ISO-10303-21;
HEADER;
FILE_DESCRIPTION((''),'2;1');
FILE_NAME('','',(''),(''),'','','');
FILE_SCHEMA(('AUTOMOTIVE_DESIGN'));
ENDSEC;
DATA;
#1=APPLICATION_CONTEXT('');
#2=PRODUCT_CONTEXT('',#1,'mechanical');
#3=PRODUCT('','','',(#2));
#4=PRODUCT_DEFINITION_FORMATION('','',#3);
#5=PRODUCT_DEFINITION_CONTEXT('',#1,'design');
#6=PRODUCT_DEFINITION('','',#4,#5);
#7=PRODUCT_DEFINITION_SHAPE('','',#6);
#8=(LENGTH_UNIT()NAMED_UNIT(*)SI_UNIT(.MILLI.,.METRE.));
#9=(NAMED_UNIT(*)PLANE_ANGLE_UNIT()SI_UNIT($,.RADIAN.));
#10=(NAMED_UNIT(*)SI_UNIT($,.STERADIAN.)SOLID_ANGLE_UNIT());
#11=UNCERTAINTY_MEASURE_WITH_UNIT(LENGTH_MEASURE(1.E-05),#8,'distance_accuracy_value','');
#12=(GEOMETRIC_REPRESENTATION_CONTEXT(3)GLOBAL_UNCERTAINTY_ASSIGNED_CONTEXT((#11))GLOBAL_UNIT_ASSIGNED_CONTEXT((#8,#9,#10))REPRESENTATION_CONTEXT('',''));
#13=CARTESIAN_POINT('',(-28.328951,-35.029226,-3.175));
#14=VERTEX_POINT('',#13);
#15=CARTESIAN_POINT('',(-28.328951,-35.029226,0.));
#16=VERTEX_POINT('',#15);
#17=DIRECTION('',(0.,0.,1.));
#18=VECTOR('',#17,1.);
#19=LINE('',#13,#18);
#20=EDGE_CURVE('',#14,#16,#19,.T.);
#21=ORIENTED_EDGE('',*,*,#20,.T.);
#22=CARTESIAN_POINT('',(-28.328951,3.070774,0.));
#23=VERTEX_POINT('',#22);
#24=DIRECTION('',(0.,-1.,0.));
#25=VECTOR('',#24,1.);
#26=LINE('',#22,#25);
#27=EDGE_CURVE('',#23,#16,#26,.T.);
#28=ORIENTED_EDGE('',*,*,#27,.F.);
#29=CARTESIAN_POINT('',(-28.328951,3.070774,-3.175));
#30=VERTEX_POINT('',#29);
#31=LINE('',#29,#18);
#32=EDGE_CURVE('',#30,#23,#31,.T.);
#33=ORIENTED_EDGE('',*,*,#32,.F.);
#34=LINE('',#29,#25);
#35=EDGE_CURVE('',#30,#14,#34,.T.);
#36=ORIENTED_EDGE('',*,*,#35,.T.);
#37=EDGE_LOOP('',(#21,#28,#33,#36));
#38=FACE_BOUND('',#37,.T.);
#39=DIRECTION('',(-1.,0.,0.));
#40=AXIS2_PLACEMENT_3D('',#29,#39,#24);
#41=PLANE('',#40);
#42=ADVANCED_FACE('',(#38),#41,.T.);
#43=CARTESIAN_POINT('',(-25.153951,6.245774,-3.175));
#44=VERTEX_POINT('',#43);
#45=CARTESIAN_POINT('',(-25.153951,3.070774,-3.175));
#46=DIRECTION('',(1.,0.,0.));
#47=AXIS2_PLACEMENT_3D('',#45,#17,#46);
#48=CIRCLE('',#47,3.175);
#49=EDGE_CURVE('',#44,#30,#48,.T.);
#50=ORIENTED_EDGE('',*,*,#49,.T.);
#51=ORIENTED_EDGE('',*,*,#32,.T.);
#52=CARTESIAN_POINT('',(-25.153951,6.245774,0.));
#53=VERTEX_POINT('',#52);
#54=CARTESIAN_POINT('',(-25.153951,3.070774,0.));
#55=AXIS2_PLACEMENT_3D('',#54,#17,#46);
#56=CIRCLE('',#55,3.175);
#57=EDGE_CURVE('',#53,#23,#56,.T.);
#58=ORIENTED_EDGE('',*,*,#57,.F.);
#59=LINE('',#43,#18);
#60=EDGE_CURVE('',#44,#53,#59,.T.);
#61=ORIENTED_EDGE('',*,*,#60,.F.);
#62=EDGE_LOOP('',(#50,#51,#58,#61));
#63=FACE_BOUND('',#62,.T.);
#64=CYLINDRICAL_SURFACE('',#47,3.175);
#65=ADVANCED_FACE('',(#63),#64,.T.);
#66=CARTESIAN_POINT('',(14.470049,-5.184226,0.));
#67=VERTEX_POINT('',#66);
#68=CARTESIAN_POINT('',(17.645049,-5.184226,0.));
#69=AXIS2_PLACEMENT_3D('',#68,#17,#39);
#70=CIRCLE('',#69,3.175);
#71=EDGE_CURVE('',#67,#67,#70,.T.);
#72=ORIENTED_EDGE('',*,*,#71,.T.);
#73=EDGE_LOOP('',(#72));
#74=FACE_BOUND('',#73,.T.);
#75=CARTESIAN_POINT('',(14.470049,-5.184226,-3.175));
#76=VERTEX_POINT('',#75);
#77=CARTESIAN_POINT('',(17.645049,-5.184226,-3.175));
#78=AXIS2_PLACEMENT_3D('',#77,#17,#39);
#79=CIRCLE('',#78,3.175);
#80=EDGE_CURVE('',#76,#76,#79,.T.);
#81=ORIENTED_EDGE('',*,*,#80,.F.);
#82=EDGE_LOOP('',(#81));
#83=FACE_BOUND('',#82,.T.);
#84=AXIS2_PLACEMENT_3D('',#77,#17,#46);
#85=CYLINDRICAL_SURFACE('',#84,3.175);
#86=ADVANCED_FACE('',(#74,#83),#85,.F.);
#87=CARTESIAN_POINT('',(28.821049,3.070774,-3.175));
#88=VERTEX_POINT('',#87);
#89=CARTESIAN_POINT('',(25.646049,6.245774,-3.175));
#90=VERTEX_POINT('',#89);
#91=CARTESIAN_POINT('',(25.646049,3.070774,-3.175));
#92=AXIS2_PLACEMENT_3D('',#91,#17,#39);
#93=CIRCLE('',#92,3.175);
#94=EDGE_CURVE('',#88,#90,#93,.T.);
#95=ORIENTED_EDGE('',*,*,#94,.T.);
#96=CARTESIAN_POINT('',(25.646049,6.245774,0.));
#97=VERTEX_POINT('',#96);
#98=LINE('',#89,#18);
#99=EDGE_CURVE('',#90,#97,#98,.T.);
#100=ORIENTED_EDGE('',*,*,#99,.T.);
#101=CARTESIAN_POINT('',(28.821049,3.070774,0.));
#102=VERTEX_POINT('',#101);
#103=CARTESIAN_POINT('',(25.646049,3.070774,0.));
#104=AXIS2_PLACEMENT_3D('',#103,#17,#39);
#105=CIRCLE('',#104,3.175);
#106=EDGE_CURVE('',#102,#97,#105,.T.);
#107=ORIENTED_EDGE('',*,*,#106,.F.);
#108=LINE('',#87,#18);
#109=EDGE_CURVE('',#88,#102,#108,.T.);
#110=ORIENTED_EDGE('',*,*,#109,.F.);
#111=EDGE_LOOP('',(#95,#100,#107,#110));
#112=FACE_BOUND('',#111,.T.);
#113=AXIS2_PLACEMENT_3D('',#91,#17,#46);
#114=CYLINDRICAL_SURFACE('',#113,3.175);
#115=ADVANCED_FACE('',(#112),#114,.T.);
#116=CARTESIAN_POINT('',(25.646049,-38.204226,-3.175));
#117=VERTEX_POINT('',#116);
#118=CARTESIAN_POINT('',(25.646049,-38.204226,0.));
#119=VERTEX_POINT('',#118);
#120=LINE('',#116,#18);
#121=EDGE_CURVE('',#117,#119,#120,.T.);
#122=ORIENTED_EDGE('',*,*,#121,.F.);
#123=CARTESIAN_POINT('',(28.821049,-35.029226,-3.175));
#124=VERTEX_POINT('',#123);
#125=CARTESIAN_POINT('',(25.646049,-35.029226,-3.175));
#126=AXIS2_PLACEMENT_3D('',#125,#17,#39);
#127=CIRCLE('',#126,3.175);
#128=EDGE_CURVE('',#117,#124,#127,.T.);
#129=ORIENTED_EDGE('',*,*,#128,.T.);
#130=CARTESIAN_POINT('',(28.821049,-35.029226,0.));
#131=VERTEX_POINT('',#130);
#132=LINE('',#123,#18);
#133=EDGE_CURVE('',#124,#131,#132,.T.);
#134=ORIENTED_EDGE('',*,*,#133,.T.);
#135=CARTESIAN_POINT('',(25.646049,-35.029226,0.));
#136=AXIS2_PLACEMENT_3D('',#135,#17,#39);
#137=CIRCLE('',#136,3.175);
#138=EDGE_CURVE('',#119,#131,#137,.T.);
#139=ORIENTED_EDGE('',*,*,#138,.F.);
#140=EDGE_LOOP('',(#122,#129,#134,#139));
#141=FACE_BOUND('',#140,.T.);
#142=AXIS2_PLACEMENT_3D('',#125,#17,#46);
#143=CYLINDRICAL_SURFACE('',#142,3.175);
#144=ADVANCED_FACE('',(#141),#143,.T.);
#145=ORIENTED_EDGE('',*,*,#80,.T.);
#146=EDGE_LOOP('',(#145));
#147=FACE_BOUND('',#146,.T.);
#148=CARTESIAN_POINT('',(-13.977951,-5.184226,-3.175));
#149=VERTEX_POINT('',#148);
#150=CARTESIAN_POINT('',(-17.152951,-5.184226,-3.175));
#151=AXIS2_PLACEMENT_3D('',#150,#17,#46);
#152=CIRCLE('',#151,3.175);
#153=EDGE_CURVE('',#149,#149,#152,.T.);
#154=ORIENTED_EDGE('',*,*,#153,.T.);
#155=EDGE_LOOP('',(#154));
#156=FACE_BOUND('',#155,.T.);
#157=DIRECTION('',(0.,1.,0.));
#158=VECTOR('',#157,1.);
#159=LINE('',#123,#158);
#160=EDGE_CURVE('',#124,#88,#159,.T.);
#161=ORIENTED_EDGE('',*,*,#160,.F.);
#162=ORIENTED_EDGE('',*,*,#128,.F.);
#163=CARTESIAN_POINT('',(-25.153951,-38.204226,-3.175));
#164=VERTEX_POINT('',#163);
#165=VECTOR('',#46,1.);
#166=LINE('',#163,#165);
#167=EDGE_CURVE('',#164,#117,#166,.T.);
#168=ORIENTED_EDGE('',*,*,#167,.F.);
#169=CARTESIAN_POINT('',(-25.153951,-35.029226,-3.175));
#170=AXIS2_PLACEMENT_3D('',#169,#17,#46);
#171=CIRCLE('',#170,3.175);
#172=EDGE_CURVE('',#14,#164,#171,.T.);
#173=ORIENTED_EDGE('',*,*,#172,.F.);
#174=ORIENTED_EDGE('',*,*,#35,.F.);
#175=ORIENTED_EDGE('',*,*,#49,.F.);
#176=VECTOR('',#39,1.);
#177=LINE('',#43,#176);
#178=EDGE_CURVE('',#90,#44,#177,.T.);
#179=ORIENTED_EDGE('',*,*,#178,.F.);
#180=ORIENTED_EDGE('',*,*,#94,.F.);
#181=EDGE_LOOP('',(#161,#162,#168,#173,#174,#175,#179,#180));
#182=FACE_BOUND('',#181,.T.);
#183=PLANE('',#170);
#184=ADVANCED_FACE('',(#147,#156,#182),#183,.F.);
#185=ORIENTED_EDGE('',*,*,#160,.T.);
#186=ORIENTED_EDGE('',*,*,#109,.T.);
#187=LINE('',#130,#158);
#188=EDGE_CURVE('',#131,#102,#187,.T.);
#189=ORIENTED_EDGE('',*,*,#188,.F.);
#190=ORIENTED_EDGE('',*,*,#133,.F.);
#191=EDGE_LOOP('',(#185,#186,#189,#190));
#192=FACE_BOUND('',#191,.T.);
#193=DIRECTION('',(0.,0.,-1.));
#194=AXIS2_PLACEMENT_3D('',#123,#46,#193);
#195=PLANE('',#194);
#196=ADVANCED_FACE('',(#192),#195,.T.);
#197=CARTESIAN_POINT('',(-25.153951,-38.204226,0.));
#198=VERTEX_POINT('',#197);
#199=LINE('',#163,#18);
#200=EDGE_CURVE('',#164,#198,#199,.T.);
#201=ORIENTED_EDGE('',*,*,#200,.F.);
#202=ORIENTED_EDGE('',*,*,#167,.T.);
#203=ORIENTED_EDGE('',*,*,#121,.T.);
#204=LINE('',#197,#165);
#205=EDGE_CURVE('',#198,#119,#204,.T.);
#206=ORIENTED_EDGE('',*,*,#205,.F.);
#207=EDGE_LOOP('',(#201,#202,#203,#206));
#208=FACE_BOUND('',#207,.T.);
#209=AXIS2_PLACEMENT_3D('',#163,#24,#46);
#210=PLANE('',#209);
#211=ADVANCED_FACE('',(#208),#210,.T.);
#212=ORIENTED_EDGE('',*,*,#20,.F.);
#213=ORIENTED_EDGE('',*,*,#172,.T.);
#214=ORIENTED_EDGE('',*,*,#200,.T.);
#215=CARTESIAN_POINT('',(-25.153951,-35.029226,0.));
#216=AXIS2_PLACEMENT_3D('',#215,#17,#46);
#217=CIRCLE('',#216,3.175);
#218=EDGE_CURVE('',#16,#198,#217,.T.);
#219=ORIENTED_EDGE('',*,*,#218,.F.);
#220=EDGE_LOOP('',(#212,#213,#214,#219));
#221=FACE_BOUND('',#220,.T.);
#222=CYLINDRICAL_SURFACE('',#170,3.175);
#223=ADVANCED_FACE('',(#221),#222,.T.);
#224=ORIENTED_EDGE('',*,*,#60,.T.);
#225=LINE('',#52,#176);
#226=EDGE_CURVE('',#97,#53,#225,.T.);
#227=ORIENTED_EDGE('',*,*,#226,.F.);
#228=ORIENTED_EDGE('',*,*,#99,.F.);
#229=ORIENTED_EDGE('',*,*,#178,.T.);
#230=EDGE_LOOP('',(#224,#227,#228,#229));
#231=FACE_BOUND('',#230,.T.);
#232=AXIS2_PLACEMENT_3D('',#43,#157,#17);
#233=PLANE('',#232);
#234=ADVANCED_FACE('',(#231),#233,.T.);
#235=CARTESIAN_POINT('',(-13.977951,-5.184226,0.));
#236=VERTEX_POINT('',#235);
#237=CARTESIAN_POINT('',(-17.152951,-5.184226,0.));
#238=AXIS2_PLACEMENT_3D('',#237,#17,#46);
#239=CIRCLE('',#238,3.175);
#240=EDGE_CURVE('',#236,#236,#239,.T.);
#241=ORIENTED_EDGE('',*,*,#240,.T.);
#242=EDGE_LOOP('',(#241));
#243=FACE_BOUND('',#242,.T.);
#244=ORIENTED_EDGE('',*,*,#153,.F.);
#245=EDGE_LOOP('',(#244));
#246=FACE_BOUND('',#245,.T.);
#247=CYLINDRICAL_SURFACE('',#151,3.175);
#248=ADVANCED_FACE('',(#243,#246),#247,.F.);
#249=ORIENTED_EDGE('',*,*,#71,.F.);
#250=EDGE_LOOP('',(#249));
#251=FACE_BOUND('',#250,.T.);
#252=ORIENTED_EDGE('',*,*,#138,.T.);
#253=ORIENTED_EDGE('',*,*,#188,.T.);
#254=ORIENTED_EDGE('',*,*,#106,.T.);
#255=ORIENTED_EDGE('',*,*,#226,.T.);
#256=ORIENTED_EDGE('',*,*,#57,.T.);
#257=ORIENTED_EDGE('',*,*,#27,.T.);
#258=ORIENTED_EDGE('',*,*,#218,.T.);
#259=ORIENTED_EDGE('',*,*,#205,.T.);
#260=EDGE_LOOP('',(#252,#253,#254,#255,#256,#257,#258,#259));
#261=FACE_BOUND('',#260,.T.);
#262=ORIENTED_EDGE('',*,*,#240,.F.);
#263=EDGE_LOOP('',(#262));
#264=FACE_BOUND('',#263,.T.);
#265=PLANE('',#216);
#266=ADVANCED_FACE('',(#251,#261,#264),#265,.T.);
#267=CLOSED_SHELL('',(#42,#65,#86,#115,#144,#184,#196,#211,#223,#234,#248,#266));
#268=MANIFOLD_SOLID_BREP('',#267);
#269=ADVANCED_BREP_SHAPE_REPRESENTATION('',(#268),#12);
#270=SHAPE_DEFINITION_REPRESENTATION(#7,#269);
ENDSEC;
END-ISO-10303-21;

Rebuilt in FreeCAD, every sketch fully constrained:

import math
import FreeCAD as App
import Part
import Sketcher

V = App.Vector
Q = App.Units.Quantity

doc = App.newDocument("Part")
body = doc.addObject("PartDesign::Body", "Body")

sketch1 = doc.addObject("Sketcher::SketchObject", "Sketch")
body.addObject(sketch1)
sketch1.AttachmentSupport = (doc.XY_Plane, [""])
sketch1.MapMode = "FlatFace"
sketch1.addGeometry([
    Part.LineSegment(V(-28.3, 3.1, 0), V(-28.3, -35, 0)),
    Part.ArcOfCircle(Part.Circle(V(-25.2, -35, 0), V(0, 0, 1), 3.2), math.radians(-180), math.radians(-90)),
    Part.LineSegment(V(-25.2, -38.2, 0), V(25.6, -38.2, 0)),
    Part.ArcOfCircle(Part.Circle(V(25.6, -35, 0), V(0, 0, 1), 3.2), math.radians(-90), math.radians(0)),
    Part.LineSegment(V(28.8, -35, 0), V(28.8, 3.1, 0)),
    Part.ArcOfCircle(Part.Circle(V(25.6, 3.1, 0), V(0, 0, 1), 3.2), math.radians(0), math.radians(90)),
    Part.LineSegment(V(25.6, 6.2, 0), V(-25.2, 6.2, 0)),
    Part.ArcOfCircle(Part.Circle(V(-25.2, 3.1, 0), V(0, 0, 1), 3.2), math.radians(90), math.radians(180)),
], False)
sketch1.addConstraint([
    Sketcher.Constraint("Tangent", 0, 2, 1, 1),
    Sketcher.Constraint("Tangent", 1, 2, 2, 1),
    Sketcher.Constraint("Tangent", 2, 2, 3, 1),
    Sketcher.Constraint("Tangent", 3, 2, 4, 1),
    Sketcher.Constraint("Tangent", 4, 2, 5, 1),
    Sketcher.Constraint("Tangent", 5, 2, 6, 1),
    Sketcher.Constraint("Tangent", 6, 2, 7, 1),
    Sketcher.Constraint("Tangent", 7, 2, 0, 1),
    Sketcher.Constraint("Vertical", 0),
    Sketcher.Constraint("Horizontal", 2),
    Sketcher.Constraint("Vertical", 4),
    Sketcher.Constraint("Horizontal", 6),
    Sketcher.Constraint("Equal", 1, 3),
    Sketcher.Constraint("Equal", 3, 5),
    Sketcher.Constraint("Equal", 5, 7),
    Sketcher.Constraint("DistanceX", 2, 1, 2, 2, Q("2 in")),
    Sketcher.Constraint("DistanceY", 0, 2, 0, 1, Q("1.5 in")),
    Sketcher.Constraint("Radius", 1, Q("0.125 in")),
    Sketcher.Constraint("DistanceX", 1, 3, -1, 1, Q("25.153951 mm")),
    Sketcher.Constraint("DistanceY", 1, 3, -1, 1, Q("35.029226 mm")),
])
pad1 = doc.addObject("PartDesign::Pad", "Pad")
body.addObject(pad1)
pad1.Profile = sketch1
pad1.Length = Q("0.125 in")
pad1.Reversed = True

sketch2 = doc.addObject("Sketcher::SketchObject", "Sketch001")
body.addObject(sketch2)
sketch2.AttachmentSupport = (doc.XY_Plane, [""])
sketch2.MapMode = "FlatFace"
sketch2.addGeometry([
    Part.Circle(V(-17.2, -5.2, 0), V(0, 0, 1), 3.2),
    Part.Circle(V(17.6, -5.2, 0), V(0, 0, 1), 3.2),
], False)
sketch2.addConstraint([
    Sketcher.Constraint("Equal", 0, 1),
    Sketcher.Constraint("Horizontal", 0, 3, 1, 3),
    Sketcher.Constraint("Diameter", 0, Q("0.25 in")),
    Sketcher.Constraint("DistanceX", 0, 3, 1, 3, Q("1.37 in")),
    Sketcher.Constraint("DistanceX", 0, 3, -1, 1, Q("17.152951 mm")),
    Sketcher.Constraint("DistanceY", 0, 3, -1, 1, Q("5.184226 mm")),
])
pocket1 = doc.addObject("PartDesign::Pocket", "Pocket")
body.addObject(pocket1)
pocket1.Profile = sketch2
pocket1.Type = "ThroughAll"

doc.recompute()
